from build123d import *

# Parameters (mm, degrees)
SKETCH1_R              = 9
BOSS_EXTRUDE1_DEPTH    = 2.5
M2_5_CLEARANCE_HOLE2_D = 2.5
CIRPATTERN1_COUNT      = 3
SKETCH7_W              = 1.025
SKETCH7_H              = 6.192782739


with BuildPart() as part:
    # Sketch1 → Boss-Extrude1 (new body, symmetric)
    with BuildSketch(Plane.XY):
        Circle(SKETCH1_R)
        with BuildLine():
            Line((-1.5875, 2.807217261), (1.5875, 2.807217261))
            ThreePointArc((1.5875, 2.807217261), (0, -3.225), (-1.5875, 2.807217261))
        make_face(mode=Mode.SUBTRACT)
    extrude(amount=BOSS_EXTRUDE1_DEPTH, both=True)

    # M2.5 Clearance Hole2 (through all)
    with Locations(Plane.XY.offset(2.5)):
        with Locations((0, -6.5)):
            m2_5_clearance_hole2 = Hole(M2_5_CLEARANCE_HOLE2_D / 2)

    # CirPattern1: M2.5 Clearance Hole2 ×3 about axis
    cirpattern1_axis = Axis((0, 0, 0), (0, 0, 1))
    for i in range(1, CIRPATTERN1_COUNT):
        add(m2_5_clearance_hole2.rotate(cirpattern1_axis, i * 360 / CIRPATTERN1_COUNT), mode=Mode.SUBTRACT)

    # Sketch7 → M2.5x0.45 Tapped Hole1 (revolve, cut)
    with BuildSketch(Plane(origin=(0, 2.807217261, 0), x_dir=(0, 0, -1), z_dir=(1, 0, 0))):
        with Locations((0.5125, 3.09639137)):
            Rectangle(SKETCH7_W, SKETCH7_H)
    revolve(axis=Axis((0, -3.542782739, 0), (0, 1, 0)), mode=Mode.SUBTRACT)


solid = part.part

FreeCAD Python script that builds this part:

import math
import FreeCAD as App
import Part
import Sketcher
from FreeCAD import Vector
Q = App.Units.Quantity


def add_polygon(sketch, points):
    """Adds a closed chain of lines whose ends are joined by coincident constraints."""
    first, n = sketch.GeometryCount, len(points)
    for a, b in zip(points, points[1:] + points[:1]):
        sketch.addGeometry(Part.LineSegment(App.Vector(*a, 0), App.Vector(*b, 0)), False)
    for i in range(n):
        sketch.addConstraint(Sketcher.Constraint("Coincident", first + i, 2, first + (i + 1) % n, 1))

doc = App.newDocument("Part")
body = doc.addObject("PartDesign::Body", "Body")

# Sketch on XY plane
sketch1 = body.newObject("Sketcher::SketchObject", "Sketch")
sketch1.AttachmentSupport = (doc.getObject("XY_Plane"), [""])
sketch1.MapMode = "FlatFace"
sketch1.addGeometry([
    Part.Circle(Vector(0, 0, 0), Vector(0, 0, 1), 9),
    Part.ArcOfCircle(Part.Circle(Vector(0, 0, 0), Vector(0, 0, 1), 3.2), math.radians(119), math.radians(421)),
    Part.LineSegment(Vector(-1.6, 2.8, 0), Vector(1.6, 2.8, 0)),
], False)
sketch1.addConstraint([
    Sketcher.Constraint("Coincident", 1, 1, 2, 1),
    Sketcher.Constraint("Coincident", 2, 2, 1, 2),
    Sketcher.Constraint("Horizontal", 2),
    Sketcher.Constraint("Coincident", 0, 3, -1, 1),
    Sketcher.Constraint("Coincident", 1, 3, -1, 1),
    Sketcher.Constraint("Diameter", 0, Q("18 mm")),
    Sketcher.Constraint("Radius", 1, Q("3.225 mm")),
    Sketcher.Constraint("DistanceX", 2, 1, 2, 2, Q("3.175 mm")),
])
pad1 = body.newObject("PartDesign::Pad", "Pad")
pad1.Profile = sketch1
pad1.Length = 5
pad1.Midplane = True

# Sketch on XY plane
sketch2 = body.newObject("Sketcher::SketchObject", "Sketch001")
sketch2.AttachmentSupport = (doc.getObject("XY_Plane"), [""])
sketch2.MapMode = "FlatFace"
sketch2.AttachmentOffset = App.Placement(Vector(0, 0, 2.5), App.Rotation())
sketch2.addGeometry(Part.Circle(Vector(0, -6.5, 0), Vector(0, 0, 1), 1.2), False)
sketch2.addConstraint([
    Sketcher.Constraint("PointOnObject", 0, 3, -2),
    Sketcher.Constraint("Diameter", 0, Q("2.5 mm")),
    Sketcher.Constraint("DistanceY", 0, 3, -1, 1, Q("6.5 mm")),
])
doc.recompute()
hole = body.newObject("PartDesign::Hole", "Hole")
hole.Profile = sketch2
hole.ThreadType = "None"
hole.Diameter = 2.5
hole.DepthType = "ThroughAll"
doc.recompute()

polarpattern = body.newObject("PartDesign::PolarPattern", "PolarPattern")
polarpattern.Originals = [hole]
polarpattern.Axis = (doc.getObject("Z_Axis"), [""])
polarpattern.Angle = 360
polarpattern.Occurrences = 3
body.Tip = polarpattern

# Sketch on YZ plane
sketch3 = body.newObject("Sketcher::SketchObject", "Sketch002")
sketch3.AttachmentSupport = (doc.getObject("YZ_Plane"), [""])
sketch3.MapMode = "FlatFace"
add_polygon(sketch3, [(9, 0), (2.8, 0), (2.8, -1), (9, -1)])  # lines 0-3
sketch3.addConstraint([
    Sketcher.Constraint("Horizontal", 0),
    Sketcher.Constraint("Vertical", 1),
    Sketcher.Constraint("Horizontal", 2),
    Sketcher.Constraint("Vertical", 3),
    Sketcher.Constraint("PointOnObject", 0, 2, -1),
    Sketcher.Constraint("DistanceX", -1, 1, 2, 2, Q("9 mm")),
    Sketcher.Constraint("DistanceY", 1, 2, 1, 1, Q("1.025 mm")),
    Sketcher.Constraint("DistanceX", 0, 2, 0, 1, Q("6.192783 mm")),
])
groove = body.newObject("PartDesign::Groove", "Groove")
groove.Profile = sketch3
groove.ReferenceAxis = (sketch3, ["H_Axis"])
groove.Angle = 360

doc.recompute()
